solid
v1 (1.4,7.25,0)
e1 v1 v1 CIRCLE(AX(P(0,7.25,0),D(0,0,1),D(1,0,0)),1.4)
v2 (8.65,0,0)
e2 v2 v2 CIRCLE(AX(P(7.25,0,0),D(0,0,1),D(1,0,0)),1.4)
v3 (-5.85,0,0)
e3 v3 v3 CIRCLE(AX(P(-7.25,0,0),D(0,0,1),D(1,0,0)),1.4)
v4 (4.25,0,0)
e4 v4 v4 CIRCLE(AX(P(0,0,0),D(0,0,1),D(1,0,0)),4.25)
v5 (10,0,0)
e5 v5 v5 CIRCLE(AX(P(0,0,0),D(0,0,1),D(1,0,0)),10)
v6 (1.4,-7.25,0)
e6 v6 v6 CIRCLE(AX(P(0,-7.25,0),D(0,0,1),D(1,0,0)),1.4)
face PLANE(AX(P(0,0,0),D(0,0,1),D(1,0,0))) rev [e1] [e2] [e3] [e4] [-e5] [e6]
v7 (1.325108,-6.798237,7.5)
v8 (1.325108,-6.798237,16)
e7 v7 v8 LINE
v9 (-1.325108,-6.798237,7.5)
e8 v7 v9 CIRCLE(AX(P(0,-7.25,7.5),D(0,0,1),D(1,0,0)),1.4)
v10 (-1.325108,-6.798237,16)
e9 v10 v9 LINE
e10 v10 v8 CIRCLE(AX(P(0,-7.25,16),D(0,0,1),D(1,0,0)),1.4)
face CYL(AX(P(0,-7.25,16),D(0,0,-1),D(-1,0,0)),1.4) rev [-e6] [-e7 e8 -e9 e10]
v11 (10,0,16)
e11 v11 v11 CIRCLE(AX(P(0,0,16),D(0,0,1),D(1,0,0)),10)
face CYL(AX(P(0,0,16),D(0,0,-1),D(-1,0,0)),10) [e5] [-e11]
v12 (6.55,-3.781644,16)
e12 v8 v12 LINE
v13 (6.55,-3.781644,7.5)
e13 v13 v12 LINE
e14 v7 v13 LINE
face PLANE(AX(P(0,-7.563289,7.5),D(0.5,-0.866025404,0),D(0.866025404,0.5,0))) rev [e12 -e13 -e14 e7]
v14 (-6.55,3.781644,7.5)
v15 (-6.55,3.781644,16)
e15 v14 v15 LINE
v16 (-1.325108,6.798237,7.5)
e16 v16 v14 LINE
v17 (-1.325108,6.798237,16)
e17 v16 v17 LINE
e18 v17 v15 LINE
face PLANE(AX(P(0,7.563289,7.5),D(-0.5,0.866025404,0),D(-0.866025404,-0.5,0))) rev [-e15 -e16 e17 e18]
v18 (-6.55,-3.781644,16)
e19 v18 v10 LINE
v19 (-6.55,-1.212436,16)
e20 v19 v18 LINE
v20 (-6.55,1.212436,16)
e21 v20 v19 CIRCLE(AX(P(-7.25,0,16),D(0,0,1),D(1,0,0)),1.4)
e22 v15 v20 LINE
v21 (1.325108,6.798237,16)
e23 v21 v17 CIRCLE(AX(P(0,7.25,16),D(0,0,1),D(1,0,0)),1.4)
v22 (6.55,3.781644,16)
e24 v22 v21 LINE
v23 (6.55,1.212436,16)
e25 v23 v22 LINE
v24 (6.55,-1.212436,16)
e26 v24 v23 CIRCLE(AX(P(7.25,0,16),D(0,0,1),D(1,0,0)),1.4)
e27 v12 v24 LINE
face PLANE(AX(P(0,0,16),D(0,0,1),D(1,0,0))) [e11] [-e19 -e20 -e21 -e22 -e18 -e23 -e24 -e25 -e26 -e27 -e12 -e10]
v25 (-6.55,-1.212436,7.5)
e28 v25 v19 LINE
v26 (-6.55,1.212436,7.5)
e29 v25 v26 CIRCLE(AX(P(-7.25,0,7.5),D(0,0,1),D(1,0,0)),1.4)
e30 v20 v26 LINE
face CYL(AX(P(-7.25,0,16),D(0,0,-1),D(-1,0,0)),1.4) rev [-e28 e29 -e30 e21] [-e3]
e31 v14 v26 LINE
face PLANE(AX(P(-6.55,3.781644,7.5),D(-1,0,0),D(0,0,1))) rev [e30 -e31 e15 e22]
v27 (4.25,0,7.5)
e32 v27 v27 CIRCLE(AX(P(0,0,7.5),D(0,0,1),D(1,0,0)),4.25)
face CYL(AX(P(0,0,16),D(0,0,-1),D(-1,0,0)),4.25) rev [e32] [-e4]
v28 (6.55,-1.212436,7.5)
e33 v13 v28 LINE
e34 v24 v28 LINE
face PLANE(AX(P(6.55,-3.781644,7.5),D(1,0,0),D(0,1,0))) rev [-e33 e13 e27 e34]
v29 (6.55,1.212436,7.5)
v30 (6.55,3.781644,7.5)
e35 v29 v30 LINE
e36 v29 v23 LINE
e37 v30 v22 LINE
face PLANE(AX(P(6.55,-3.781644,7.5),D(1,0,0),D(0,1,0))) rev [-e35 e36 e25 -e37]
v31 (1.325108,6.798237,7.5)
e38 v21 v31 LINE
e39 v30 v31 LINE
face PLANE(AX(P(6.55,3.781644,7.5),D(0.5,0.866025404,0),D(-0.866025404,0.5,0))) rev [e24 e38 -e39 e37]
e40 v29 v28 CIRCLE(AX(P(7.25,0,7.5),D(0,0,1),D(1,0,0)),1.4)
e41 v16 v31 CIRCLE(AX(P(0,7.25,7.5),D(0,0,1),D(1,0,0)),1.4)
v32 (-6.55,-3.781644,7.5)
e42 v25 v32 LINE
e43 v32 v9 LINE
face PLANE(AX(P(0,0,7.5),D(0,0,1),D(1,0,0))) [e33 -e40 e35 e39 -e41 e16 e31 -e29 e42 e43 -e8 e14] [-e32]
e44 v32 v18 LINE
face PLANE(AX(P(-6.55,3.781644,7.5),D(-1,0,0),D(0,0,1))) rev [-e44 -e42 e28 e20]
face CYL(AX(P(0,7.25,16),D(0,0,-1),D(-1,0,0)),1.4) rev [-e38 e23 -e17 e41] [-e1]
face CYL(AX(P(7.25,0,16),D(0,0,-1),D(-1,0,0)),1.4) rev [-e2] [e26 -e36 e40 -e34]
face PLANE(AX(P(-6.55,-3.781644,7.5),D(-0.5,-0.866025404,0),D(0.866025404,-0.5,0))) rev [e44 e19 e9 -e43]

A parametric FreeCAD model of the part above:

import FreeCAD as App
import Part
import Sketcher
Q = App.Units.Quantity


def add_polygon(sketch, points):
    """Adds a closed chain of lines whose ends are joined by coincident constraints."""
    first, n = sketch.GeometryCount, len(points)
    for a, b in zip(points, points[1:] + points[:1]):
        sketch.addGeometry(Part.LineSegment(App.Vector(*a, 0), App.Vector(*b, 0)), False)
    for i in range(n):
        sketch.addConstraint(Sketcher.Constraint("Coincident", first + i, 2, first + (i + 1) % n, 1))

doc = App.newDocument("Part")
params = doc.addObject("Spreadsheet::Sheet", "Params")
for row, (alias, value) in enumerate([
    ("sketch1_diameter", "20 mm"),
    ("sketch1_diameter2", "2.8 mm"),
    ("sketch1_diameter3", "8.5 mm"),
    ("pad1_length", "16 mm"),
    ("pocket1_length", "8.5 mm"),
], start=1):
    params.set(f"A{row}", alias)
    params.set(f"B{row}", "=" + value)
    params.setAlias(f"B{row}", alias)

body = doc.addObject("PartDesign::Body", "Body")

# Sketch on XY plane
sketch1 = doc.addObject("Sketcher::SketchObject", "Sketch")
body.addObject(sketch1)
sketch1.AttachmentSupport = (doc.XY_Plane, [""])
sketch1.MapMode = "FlatFace"
sketch1.addGeometry([
    Part.Circle(App.Vector(0, 0, 0), App.Vector(0, 0, 1), 10),  # 0
    Part.Circle(App.Vector(0, -7.25, 0), App.Vector(0, 0, 1), 1.4),  # 1
    Part.Circle(App.Vector(-7.25, 0, 0), App.Vector(0, 0, 1), 1.4),  # 2
    Part.Circle(App.Vector(0, 0, 0), App.Vector(0, 0, 1), 4.25),  # 3
    Part.Circle(App.Vector(0, 7.25, 0), App.Vector(0, 0, 1), 1.4),  # 4
    Part.Circle(App.Vector(7.25, 0, 0), App.Vector(0, 0, 1), 1.4),  # 5
], False)
sketch1.addConstraint([
    Sketcher.Constraint("Coincident", 0, 3, -1, 1),
    Sketcher.Constraint("Coincident", 3, 3, -1, 1),
    Sketcher.Constraint("Equal", 1, 2),
    Sketcher.Constraint("Equal", 2, 4),
    Sketcher.Constraint("Equal", 4, 5),
    Sketcher.Constraint("Symmetric", 1, 3, 4, 3, -1, 1),
    Sketcher.Constraint("Symmetric", 2, 3, 5, 3, -1, 1),
    Sketcher.Constraint("PointOnObject", 1, 3, -2),
    Sketcher.Constraint("PointOnObject", 2, 3, -1),
    Sketcher.Constraint("Diameter", 0, Q("20 mm")),
    Sketcher.Constraint("Diameter", 1, Q("2.8 mm")),
    Sketcher.Constraint("Diameter", 3, Q("8.5 mm")),
    Sketcher.Constraint("DistanceY", 1, 3, 4, 3, Q("14.5 mm")),
    Sketcher.Constraint("DistanceX", 2, 3, 5, 3, Q("14.5 mm")),
])
sketch1.setExpression("Constraints[9]", "Params.sketch1_diameter")
sketch1.setExpression("Constraints[10]", "Params.sketch1_diameter2")
sketch1.setExpression("Constraints[11]", "Params.sketch1_diameter3")
pad1 = doc.addObject("PartDesign::Pad", "Pad")
body.addObject(pad1)
pad1.Profile = sketch1
pad1.setExpression("Length", "Params.pad1_length")

# Sketch on XY plane
sketch2 = doc.addObject("Sketcher::SketchObject", "Sketch001")
body.addObject(sketch2)
sketch2.AttachmentSupport = (doc.XY_Plane, [""])
sketch2.MapMode = "FlatFace"
sketch2.AttachmentOffset = App.Placement(App.Vector(0, 0, 16), App.Rotation())
add_polygon(sketch2, [(0, 7.563289), (-6.55, 3.781644), (-6.55, -3.781644), (0, -7.563289), (6.55, -3.781644), (6.55, 3.781644)])  # lines 0-5
sketch2.addConstraint([
    Sketcher.Constraint("Vertical", 1),
    Sketcher.Constraint("Vertical", 4),
    Sketcher.Constraint("Symmetric", 0, 2, 3, 2, -1, 1),
    Sketcher.Constraint("Symmetric", 2, 2, 5, 2, -1, 1),
    Sketcher.Constraint("PointOnObject", 2, 2, -2),
    Sketcher.Constraint("Parallel", 2, 5),
    Sketcher.Constraint("Horizontal", 1, 2, 3, 2),
    Sketcher.Constraint("Angle", 0, Q("-150 deg")),
    Sketcher.Constraint("DistanceX", 1, 2, 3, 2, Q("13.1 mm")),
    Sketcher.Constraint("DistanceY", 1, 2, 1, 1, Q("7.563289 mm")),
])
pocket1 = doc.addObject("PartDesign::Pocket", "Pocket")
body.addObject(pocket1)
pocket1.Profile = sketch2
pocket1.setExpression("Length", "Params.pocket1_length")

doc.recompute()
